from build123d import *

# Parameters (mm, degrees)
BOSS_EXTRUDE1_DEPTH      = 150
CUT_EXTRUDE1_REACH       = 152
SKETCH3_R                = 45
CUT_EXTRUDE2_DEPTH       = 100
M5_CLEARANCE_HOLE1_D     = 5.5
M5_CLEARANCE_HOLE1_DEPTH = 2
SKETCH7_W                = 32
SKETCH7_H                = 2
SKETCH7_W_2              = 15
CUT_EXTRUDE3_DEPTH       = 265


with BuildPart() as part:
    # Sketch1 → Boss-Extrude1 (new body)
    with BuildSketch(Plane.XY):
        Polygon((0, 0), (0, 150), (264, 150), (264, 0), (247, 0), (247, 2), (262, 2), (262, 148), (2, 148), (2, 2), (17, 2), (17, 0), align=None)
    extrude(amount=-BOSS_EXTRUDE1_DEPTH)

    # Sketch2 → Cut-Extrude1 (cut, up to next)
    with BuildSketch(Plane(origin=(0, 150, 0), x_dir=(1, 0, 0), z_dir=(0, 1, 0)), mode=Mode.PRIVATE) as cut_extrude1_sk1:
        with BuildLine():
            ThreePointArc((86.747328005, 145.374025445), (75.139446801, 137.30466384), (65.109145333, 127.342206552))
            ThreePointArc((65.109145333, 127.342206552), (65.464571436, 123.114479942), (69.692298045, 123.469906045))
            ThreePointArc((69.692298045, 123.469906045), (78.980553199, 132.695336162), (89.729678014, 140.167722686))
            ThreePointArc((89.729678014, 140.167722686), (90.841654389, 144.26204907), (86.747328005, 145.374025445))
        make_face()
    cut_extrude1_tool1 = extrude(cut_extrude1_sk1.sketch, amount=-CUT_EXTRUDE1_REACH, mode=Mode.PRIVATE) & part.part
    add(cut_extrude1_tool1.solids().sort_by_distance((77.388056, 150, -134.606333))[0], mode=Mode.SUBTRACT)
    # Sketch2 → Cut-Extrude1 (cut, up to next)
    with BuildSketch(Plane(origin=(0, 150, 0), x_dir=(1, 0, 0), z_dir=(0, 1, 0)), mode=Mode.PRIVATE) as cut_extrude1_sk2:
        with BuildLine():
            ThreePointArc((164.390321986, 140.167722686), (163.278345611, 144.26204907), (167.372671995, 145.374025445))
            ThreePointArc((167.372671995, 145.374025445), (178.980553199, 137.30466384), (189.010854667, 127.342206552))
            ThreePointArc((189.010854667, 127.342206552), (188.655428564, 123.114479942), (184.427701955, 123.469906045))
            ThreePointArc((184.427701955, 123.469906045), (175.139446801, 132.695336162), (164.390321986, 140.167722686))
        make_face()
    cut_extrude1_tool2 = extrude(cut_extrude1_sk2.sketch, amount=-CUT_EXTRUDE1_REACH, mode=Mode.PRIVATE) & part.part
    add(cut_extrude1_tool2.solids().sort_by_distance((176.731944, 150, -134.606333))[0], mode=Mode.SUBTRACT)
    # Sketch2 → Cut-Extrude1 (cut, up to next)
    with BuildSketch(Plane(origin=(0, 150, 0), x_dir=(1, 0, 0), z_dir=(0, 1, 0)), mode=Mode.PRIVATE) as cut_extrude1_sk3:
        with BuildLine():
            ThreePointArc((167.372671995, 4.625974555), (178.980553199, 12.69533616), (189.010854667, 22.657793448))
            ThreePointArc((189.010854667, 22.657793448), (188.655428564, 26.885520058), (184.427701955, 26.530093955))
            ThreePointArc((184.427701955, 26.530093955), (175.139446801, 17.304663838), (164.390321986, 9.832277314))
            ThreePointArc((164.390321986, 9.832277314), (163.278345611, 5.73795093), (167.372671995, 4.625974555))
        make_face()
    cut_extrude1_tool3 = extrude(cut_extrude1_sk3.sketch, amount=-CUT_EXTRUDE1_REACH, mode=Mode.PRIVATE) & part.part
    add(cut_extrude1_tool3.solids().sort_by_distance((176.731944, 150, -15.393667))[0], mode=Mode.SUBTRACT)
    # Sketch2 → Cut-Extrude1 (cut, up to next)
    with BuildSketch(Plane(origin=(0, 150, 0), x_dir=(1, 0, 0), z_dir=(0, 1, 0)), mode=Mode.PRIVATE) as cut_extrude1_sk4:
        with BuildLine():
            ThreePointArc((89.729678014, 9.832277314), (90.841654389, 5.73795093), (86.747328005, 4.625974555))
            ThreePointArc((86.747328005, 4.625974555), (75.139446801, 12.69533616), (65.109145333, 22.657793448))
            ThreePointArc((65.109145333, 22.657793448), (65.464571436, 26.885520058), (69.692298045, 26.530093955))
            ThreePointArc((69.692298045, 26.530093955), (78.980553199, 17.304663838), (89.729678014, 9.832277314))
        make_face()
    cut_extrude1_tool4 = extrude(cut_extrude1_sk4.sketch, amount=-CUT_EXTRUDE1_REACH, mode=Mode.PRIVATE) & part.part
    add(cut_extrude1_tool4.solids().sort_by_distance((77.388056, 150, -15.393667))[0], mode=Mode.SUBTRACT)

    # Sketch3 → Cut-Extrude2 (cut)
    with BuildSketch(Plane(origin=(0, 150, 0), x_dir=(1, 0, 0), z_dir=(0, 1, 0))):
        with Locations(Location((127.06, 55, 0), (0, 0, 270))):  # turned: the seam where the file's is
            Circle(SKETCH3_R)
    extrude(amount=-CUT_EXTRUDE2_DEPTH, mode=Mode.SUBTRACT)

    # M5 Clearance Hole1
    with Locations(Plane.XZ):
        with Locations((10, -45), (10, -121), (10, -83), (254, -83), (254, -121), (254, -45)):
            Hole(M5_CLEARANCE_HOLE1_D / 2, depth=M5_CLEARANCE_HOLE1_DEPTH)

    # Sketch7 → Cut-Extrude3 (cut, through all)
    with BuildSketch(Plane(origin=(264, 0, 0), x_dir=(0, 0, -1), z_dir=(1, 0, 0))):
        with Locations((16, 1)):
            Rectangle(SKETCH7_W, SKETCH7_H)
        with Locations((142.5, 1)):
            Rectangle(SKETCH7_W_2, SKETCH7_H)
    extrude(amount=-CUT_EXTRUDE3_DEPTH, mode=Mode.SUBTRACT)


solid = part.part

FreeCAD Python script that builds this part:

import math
import FreeCAD as App
import Part
import Sketcher

V = App.Vector

doc = App.newDocument("Part")
body = doc.addObject("PartDesign::Body", "Body")

sketch1 = doc.addObject("Sketcher::SketchObject", "Sketch")
body.addObject(sketch1)
sketch1.AttachmentSupport = (doc.XY_Plane, [""])
sketch1.MapMode = "FlatFace"
sketch1.addGeometry([
    Part.LineSegment(V(0, 150, 0), V(0, 0, 0)),
    Part.LineSegment(V(0, 0, 0), V(17, 0, 0)),
    Part.LineSegment(V(17, 0, 0), V(17, 2, 0)),
    Part.LineSegment(V(17, 2, 0), V(2, 2, 0)),
    Part.LineSegment(V(2, 2, 0), V(2, 148, 0)),
    Part.LineSegment(V(2, 148, 0), V(262, 148, 0)),
    Part.LineSegment(V(262, 148, 0), V(262, 2, 0)),
    Part.LineSegment(V(262, 2, 0), V(247, 2, 0)),
    Part.LineSegment(V(247, 2, 0), V(247, 0, 0)),
    Part.LineSegment(V(247, 0, 0), V(264, 0, 0)),
    Part.LineSegment(V(264, 0, 0), V(264, 150, 0)),
    Part.LineSegment(V(264, 150, 0), V(0, 150, 0)),
], False)
sketch1.addConstraint([
    Sketcher.Constraint("Coincident", 0, 2, 1, 1),
    Sketcher.Constraint("Coincident", 1, 2, 2, 1),
    Sketcher.Constraint("Coincident", 2, 2, 3, 1),
    Sketcher.Constraint("Coincident", 3, 2, 4, 1),
    Sketcher.Constraint("Coincident", 4, 2, 5, 1),
    Sketcher.Constraint("Coincident", 5, 2, 6, 1),
    Sketcher.Constraint("Coincident", 6, 2, 7, 1),
    Sketcher.Constraint("Coincident", 7, 2, 8, 1),
    Sketcher.Constraint("Coincident", 8, 2, 9, 1),
    Sketcher.Constraint("Coincident", 9, 2, 10, 1),
    Sketcher.Constraint("Coincident", 10, 2, 11, 1),
    Sketcher.Constraint("Coincident", 11, 2, 0, 1),
    Sketcher.Constraint("Vertical", 0),
    Sketcher.Constraint("Horizontal", 1),
    Sketcher.Constraint("Vertical", 2),
    Sketcher.Constraint("Horizontal", 3),
    Sketcher.Constraint("Vertical", 4),
    Sketcher.Constraint("Horizontal", 5),
    Sketcher.Constraint("Vertical", 6),
    Sketcher.Constraint("Horizontal", 7),
    Sketcher.Constraint("Vertical", 8),
    Sketcher.Constraint("Horizontal", 9),
    Sketcher.Constraint("Vertical", 10),
    Sketcher.Constraint("Horizontal", 11),
    Sketcher.Constraint("Coincident", 0, 2, -1, 1),
    Sketcher.Constraint("PointOnObject", 8, 2, -1),
    Sketcher.Constraint("Horizontal", 3, 2, 6, 2),
    Sketcher.Constraint("Equal", 3, 7),
    Sketcher.Constraint("Equal", 1, 9),
    Sketcher.Constraint("DistanceX", 1, 1, 1, 2, 17.0),
    Sketcher.Constraint("DistanceX", 3, 2, 3, 1, 15.0),
    Sketcher.Constraint("DistanceX", 5, 1, 5, 2, 260.0),
    Sketcher.Constraint("DistanceY", 0, 2, 0, 1, 150.0),
    Sketcher.Constraint("DistanceY", 2, 1, 2, 2, 2.0),
    Sketcher.Constraint("DistanceY", 4, 1, 4, 2, 146.0),
])
pad1 = doc.addObject("PartDesign::Pad", "Pad")
body.addObject(pad1)
pad1.Profile = sketch1
pad1.Length = 150
pad1.Reversed = True

sketch2 = doc.addObject("Sketcher::SketchObject", "Sketch001")
body.addObject(sketch2)
sketch2.AttachmentSupport = (doc.XZ_Plane, [""])
sketch2.MapMode = "FlatFace"
sketch2.AttachmentOffset = App.Placement(V(0, 0, -150), App.Rotation())
sketch2.addGeometry([
    Part.ArcOfCircle(Part.Circle(V(127.1, -75, 0), V(0, 0, 1), 81.1), math.radians(-140), math.radians(-120)),
    Part.ArcOfCircle(Part.Circle(V(67.4, -125.4, 0), V(0, 0, 1), 3), math.radians(40), math.radians(220)),
    Part.ArcOfCircle(Part.Circle(V(127.1, -75, 0), V(0, 0, 1), 75.1), math.radians(-139.81), math.radians(-119.81)),
    Part.ArcOfCircle(Part.Circle(V(88.2, -142.8, 0), V(0, 0, 1), 3), math.radians(-120), math.radians(60)),
], False)
sketch2.addConstraint([
    Sketcher.Constraint("Tangent", 0, 1, 1, 2),
    Sketcher.Constraint("Tangent", 1, 1, 2, 1),
    Sketcher.Constraint("Tangent", 2, 2, 3, 2),
    Sketcher.Constraint("Tangent", 3, 1, 0, 2),
    Sketcher.Constraint("Coincident", 2, 3, 0, 3),
    Sketcher.Constraint("Radius", 1, 3.0),
    Sketcher.Constraint("DistanceY", 0, 3, -1, 1, 75.0),
    Sketcher.Constraint("DistanceX", -1, 1, 0, 3, 127.06),
    Sketcher.Constraint("Radius", 0, 81.102497),
    Sketcher.Constraint("DistanceX", -1, 1, 1, 1, 69.692298),
    Sketcher.Constraint("DistanceX", -1, 1, 2, 2, 89.729678),
])
pocket1 = doc.addObject("PartDesign::Pocket", "Pocket")
body.addObject(pocket1)
pocket1.Profile = sketch2
pocket1.Type = "UpToFirst"
pocket1.Reversed = True

sketch3 = doc.addObject("Sketcher::SketchObject", "Sketch002")
body.addObject(sketch3)
sketch3.AttachmentSupport = (doc.XZ_Plane, [""])
sketch3.MapMode = "FlatFace"
sketch3.AttachmentOffset = App.Placement(V(0, 0, -150), App.Rotation())
sketch3.addGeometry([
    Part.ArcOfCircle(Part.Circle(V(165.9, -142.8, 0), V(0, 0, 1), 3), math.radians(120), math.radians(300)),
    Part.ArcOfCircle(Part.Circle(V(127.1, -75, 0), V(0, 0, 1), 75.1), math.radians(-60.19), math.radians(-40.19)),
    Part.ArcOfCircle(Part.Circle(V(186.7, -125.4, 0), V(0, 0, 1), 3), math.radians(-40), math.radians(140)),
    Part.ArcOfCircle(Part.Circle(V(127.1, -75, 0), V(0, 0, 1), 81.1), math.radians(-60), math.radians(-40)),
], False)
sketch3.addConstraint([
    Sketcher.Constraint("Tangent", 0, 1, 1, 1),
    Sketcher.Constraint("Tangent", 1, 2, 2, 2),
    Sketcher.Constraint("Tangent", 2, 1, 3, 2),
    Sketcher.Constraint("Tangent", 3, 1, 0, 2),
    Sketcher.Constraint("Coincident", 3, 3, 1, 3),
    Sketcher.Constraint("Radius", 0, 3.0),
    Sketcher.Constraint("DistanceY", 1, 3, -1, 1, 75.0),
    Sketcher.Constraint("DistanceX", -1, 1, 1, 3, 127.06),
    Sketcher.Constraint("Radius", 1, 75.102497),
    Sketcher.Constraint("DistanceX", -1, 1, 1, 2, 184.427702),
    Sketcher.Constraint("DistanceX", -1, 1, 0, 1, 164.390322),
])
pocket2 = doc.addObject("PartDesign::Pocket", "Pocket001")
body.addObject(pocket2)
pocket2.Profile = sketch3
pocket2.Type = "UpToFirst"
pocket2.Reversed = True

sketch4 = doc.addObject("Sketcher::SketchObject", "Sketch003")
body.addObject(sketch4)
sketch4.AttachmentSupport = (doc.XZ_Plane, [""])
sketch4.MapMode = "FlatFace"
sketch4.AttachmentOffset = App.Placement(V(0, 0, -150), App.Rotation())
sketch4.addGeometry([
    Part.ArcOfCircle(Part.Circle(V(127.1, -75, 0), V(0, 0, 1), 81.1), math.radians(40), math.radians(60)),
    Part.ArcOfCircle(Part.Circle(V(186.7, -24.6, 0), V(0, 0, 1), 3), math.radians(-140), math.radians(40)),
    Part.ArcOfCircle(Part.Circle(V(127.1, -75, 0), V(0, 0, 1), 75.1), math.radians(40.19), math.radians(60.19)),
    Part.ArcOfCircle(Part.Circle(V(165.9, -7.2, 0), V(0, 0, 1), 3), math.radians(60), math.radians(240)),
], False)
sketch4.addConstraint([
    Sketcher.Constraint("Tangent", 0, 1, 1, 2),
    Sketcher.Constraint("Tangent", 1, 1, 2, 1),
    Sketcher.Constraint("Tangent", 2, 2, 3, 2),
    Sketcher.Constraint("Tangent", 3, 1, 0, 2),
    Sketcher.Constraint("Coincident", 2, 3, 0, 3),
    Sketcher.Constraint("Radius", 1, 3.0),
    Sketcher.Constraint("DistanceY", 0, 3, -1, 1, 75.0),
    Sketcher.Constraint("DistanceX", -1, 1, 0, 3, 127.06),
    Sketcher.Constraint("Radius", 0, 81.102497),
    Sketcher.Constraint("DistanceX", -1, 1, 1, 1, 184.427702),
    Sketcher.Constraint("DistanceX", -1, 1, 2, 2, 164.390322),
])
pocket3 = doc.addObject("PartDesign::Pocket", "Pocket002")
body.addObject(pocket3)
pocket3.Profile = sketch4
pocket3.Type = "UpToFirst"
pocket3.Reversed = True

sketch5 = doc.addObject("Sketcher::SketchObject", "Sketch004")
body.addObject(sketch5)
sketch5.AttachmentSupport = (doc.XZ_Plane, [""])
sketch5.MapMode = "FlatFace"
sketch5.AttachmentOffset = App.Placement(V(0, 0, -150), App.Rotation())
sketch5.addGeometry([
    Part.ArcOfCircle(Part.Circle(V(88.2, -7.2, 0), V(0, 0, 1), 3), math.radians(-60), math.radians(120)),
    Part.ArcOfCircle(Part.Circle(V(127.1, -75, 0), V(0, 0, 1), 75.1), math.radians(119.81), math.radians(139.81)),
    Part.ArcOfCircle(Part.Circle(V(67.4, -24.6, 0), V(0, 0, 1), 3), math.radians(140), math.radians(320)),
    Part.ArcOfCircle(Part.Circle(V(127.1, -75, 0), V(0, 0, 1), 81.1), math.radians(120), math.radians(140)),
], False)
sketch5.addConstraint([
    Sketcher.Constraint("Tangent", 0, 1, 1, 1),
    Sketcher.Constraint("Tangent", 1, 2, 2, 2),
    Sketcher.Constraint("Tangent", 2, 1, 3, 2),
    Sketcher.Constraint("Tangent", 3, 1, 0, 2),
    Sketcher.Constraint("Coincident", 3, 3, 1, 3),
    Sketcher.Constraint("Radius", 0, 3.0),
    Sketcher.Constraint("DistanceY", 1, 3, -1, 1, 75.0),
    Sketcher.Constraint("DistanceX", -1, 1, 1, 3, 127.06),
    Sketcher.Constraint("Radius", 1, 75.102497),
    Sketcher.Constraint("DistanceX", -1, 1, 1, 2, 69.692298),
    Sketcher.Constraint("DistanceX", -1, 1, 0, 1, 89.729678),
])
pocket4 = doc.addObject("PartDesign::Pocket", "Pocket003")
body.addObject(pocket4)
pocket4.Profile = sketch5
pocket4.Type = "UpToFirst"
pocket4.Reversed = True

sketch6 = doc.addObject("Sketcher::SketchObject", "Sketch005")
body.addObject(sketch6)
sketch6.AttachmentSupport = (doc.XZ_Plane, [""])
sketch6.MapMode = "FlatFace"
sketch6.AttachmentOffset = App.Placement(V(0, 0, -150), App.Rotation())
sketch6.addGeometry(Part.Circle(V(127, -55, 0), V(0, 0, 1), 45), False)
sketch6.addConstraint([
    Sketcher.Constraint("Diameter", 0, 90.0),
    Sketcher.Constraint("DistanceY", 0, 3, -1, 1, 55.0),
    Sketcher.Constraint("DistanceX", -1, 1, 0, 3, 127.06),
])
pocket5 = doc.addObject("PartDesign::Pocket", "Pocket004")
body.addObject(pocket5)
pocket5.Profile = sketch6
pocket5.Length = 100
pocket5.Reversed = True

sketch7 = doc.addObject("Sketcher::SketchObject", "Sketch006")
body.addObject(sketch7)
sketch7.AttachmentSupport = (doc.XZ_Plane, [""])
sketch7.MapMode = "FlatFace"
sketch7.addGeometry([
    Part.Circle(V(10, -45, 0), V(0, 0, 1), 2.8),
    Part.Circle(V(10, -121, 0), V(0, 0, 1), 2.8),
    Part.Circle(V(10, -83, 0), V(0, 0, 1), 2.8),
    Part.Circle(V(254, -83, 0), V(0, 0, 1), 2.8),
    Part.Circle(V(254, -121, 0), V(0, 0, 1), 2.8),
    Part.Circle(V(254, -45, 0), V(0, 0, 1), 2.8),
], False)
sketch7.addConstraint([
    Sketcher.Constraint("Equal", 0, 1),
    Sketcher.Constraint("Equal", 1, 2),
    Sketcher.Constraint("Equal", 2, 3),
    Sketcher.Constraint("Equal", 3, 4),
    Sketcher.Constraint("Equal", 4, 5),
    Sketcher.Constraint("Horizontal", 2, 3, 3, 3),
    Sketcher.Constraint("Horizontal", 1, 3, 4, 3),
    Sketcher.Constraint("Horizontal", 0, 3, 5, 3),
    Sketcher.Constraint("Vertical", 0, 3, 1, 3),
    Sketcher.Constraint("Vertical", 1, 3, 2, 3),
    Sketcher.Constraint("Vertical", 3, 3, 4, 3),
    Sketcher.Constraint("Vertical", 4, 3, 5, 3),
    Sketcher.Constraint("Diameter", 0, 5.5),
    Sketcher.Constraint("DistanceX", -1, 1, 0, 3, 10.0),
    Sketcher.Constraint("DistanceY", 0, 3, -1, 1, 45.0),
    Sketcher.Constraint("DistanceY", 1, 3, -1, 1, 121.0),
    Sketcher.Constraint("DistanceY", 2, 3, -1, 1, 83.0),
    Sketcher.Constraint("DistanceX", -1, 1, 3, 3, 254.0),
])
doc.recompute()
hole = doc.addObject("PartDesign::Hole", "Hole")
body.addObject(hole)
hole.Profile = sketch7
hole.ThreadType = "None"
hole.Diameter = 5.5
hole.DepthType = "Dimension"
hole.Depth = 2
hole.DrillPoint = "Flat"

sketch8 = doc.addObject("Sketcher::SketchObject", "Sketch007")
body.addObject(sketch8)
sketch8.AttachmentSupport = (doc.YZ_Plane, [""])
sketch8.MapMode = "FlatFace"
sketch8.AttachmentOffset = App.Placement(V(0, 0, 264), App.Rotation())
sketch8.addGeometry([
    Part.LineSegment(V(2, 0, 0), V(0, 0, 0)),
    Part.LineSegment(V(0, 0, 0), V(0, -32, 0)),
    Part.LineSegment(V(0, -32, 0), V(2, -32, 0)),
    Part.LineSegment(V(2, -32, 0), V(2, 0, 0)),
    Part.LineSegment(V(2, -135, 0), V(0, -135, 0)),
    Part.LineSegment(V(0, -135, 0), V(0, -150, 0)),
    Part.LineSegment(V(0, -150, 0), V(2, -150, 0)),
    Part.LineSegment(V(2, -150, 0), V(2, -135, 0)),
], False)
sketch8.addConstraint([
    Sketcher.Constraint("Coincident", 0, 2, 1, 1),
    Sketcher.Constraint("Coincident", 1, 2, 2, 1),
    Sketcher.Constraint("Coincident", 2, 2, 3, 1),
    Sketcher.Constraint("Coincident", 3, 2, 0, 1),
    Sketcher.Constraint("Coincident", 4, 2, 5, 1),
    Sketcher.Constraint("Coincident", 5, 2, 6, 1),
    Sketcher.Constraint("Coincident", 6, 2, 7, 1),
    Sketcher.Constraint("Coincident", 7, 2, 4, 1),
    Sketcher.Constraint("Horizontal", 0),
    Sketcher.Constraint("Vertical", 1),
    Sketcher.Constraint("Horizontal", 2),
    Sketcher.Constraint("Vertical", 3),
    Sketcher.Constraint("Horizontal", 4),
    Sketcher.Constraint("Vertical", 5),
    Sketcher.Constraint("Horizontal", 6),
    Sketcher.Constraint("Vertical", 7),
    Sketcher.Constraint("Coincident", 0, 2, -1, 1),
    Sketcher.Constraint("PointOnObject", 4, 2, -2),
    Sketcher.Constraint("Vertical", 3, 2, 6, 2),
    Sketcher.Constraint("DistanceX", 0, 2, 0, 1, 2.0),
    Sketcher.Constraint("DistanceY", 1, 2, 1, 1, 32.0),
    Sketcher.Constraint("DistanceY", 5, 2, 5, 1, 15.0),
    Sketcher.Constraint("DistanceY", 4, 2, -1, 1, 135.0),
])
pocket6 = doc.addObject("PartDesign::Pocket", "Pocket005")
body.addObject(pocket6)
pocket6.Profile = sketch8
pocket6.Type = "ThroughAll"

doc.recompute()
